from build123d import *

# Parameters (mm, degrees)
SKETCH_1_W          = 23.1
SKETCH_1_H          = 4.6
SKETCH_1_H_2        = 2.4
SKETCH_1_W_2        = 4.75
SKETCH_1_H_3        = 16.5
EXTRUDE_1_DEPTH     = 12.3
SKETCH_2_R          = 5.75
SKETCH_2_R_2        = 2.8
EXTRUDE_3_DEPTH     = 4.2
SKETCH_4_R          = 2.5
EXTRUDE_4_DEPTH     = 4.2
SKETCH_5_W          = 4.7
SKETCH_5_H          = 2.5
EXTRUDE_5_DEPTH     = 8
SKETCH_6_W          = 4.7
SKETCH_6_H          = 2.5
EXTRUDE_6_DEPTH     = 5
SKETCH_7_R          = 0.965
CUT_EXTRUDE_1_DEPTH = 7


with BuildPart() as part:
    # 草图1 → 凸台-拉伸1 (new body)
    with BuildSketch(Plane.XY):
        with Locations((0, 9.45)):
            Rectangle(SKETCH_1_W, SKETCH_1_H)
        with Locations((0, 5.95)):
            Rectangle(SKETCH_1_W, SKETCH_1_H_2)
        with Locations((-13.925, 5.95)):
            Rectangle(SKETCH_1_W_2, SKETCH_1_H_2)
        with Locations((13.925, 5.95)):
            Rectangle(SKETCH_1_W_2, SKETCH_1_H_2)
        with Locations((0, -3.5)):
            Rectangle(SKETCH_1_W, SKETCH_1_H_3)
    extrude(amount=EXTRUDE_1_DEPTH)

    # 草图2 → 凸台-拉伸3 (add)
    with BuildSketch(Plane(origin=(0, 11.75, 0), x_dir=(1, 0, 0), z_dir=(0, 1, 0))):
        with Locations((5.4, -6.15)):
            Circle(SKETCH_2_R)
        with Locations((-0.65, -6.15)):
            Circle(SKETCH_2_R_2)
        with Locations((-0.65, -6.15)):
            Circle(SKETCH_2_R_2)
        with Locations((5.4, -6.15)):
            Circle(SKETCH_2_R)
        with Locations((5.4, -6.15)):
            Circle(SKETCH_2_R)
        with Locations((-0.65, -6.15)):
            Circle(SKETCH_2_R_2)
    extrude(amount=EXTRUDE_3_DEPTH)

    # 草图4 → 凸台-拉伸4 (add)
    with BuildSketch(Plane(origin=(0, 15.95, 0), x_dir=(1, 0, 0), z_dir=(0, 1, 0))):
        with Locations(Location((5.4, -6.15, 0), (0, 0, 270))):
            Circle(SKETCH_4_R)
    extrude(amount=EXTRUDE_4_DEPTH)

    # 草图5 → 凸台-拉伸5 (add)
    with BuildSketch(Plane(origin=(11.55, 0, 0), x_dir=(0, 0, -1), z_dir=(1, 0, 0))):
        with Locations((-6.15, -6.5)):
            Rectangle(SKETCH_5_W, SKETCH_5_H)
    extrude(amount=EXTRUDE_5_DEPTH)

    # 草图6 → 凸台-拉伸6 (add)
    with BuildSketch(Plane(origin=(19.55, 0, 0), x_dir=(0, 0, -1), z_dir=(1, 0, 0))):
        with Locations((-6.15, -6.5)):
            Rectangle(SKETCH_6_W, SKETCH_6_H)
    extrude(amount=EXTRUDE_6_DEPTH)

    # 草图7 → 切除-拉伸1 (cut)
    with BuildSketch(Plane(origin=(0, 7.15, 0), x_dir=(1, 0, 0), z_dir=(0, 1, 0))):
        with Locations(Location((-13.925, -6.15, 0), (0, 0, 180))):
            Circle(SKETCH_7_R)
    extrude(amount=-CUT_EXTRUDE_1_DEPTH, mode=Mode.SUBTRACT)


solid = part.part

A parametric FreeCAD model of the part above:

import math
import FreeCAD as App
import Part
import Sketcher

V = App.Vector


def add_polygon(sketch, points):
    """Adds a closed chain of lines whose ends are joined by coincident constraints."""
    first, n = sketch.GeometryCount, len(points)
    for a, b in zip(points, points[1:] + points[:1]):
        sketch.addGeometry(Part.LineSegment(App.Vector(*a, 0), App.Vector(*b, 0)), False)
    for i in range(n):
        sketch.addConstraint(Sketcher.Constraint("Coincident", first + i, 2, first + (i + 1) % n, 1))

doc = App.newDocument("Part")
params = doc.addObject("Spreadsheet::Sheet", "Params")
for row, (alias, value) in enumerate([
    ("sketch1_width", "23.1 mm"),
    ("sketch1_height", "4.6 mm"),
    ("sketch1_height2", "2.4 mm"),
    ("sketch1_height3", "16.5 mm"),
    ("sketch1_width2", "4.75 mm"),
    ("pad1_length", "12.3 mm"),
    ("sketch2_radius", "2.8 mm"),
    ("sketch2_radius2", "5.75 mm"),
    ("pad2_length", "4.2 mm"),
    ("sketch3_diameter", "5 mm"),
    ("pad3_length", "4.2 mm"),
    ("sketch4_width", "2.5 mm"),
    ("sketch4_height", "4.7 mm"),
    ("pad4_length", "8 mm"),
    ("sketch5_width", "2.5 mm"),
    ("sketch5_height", "4.7 mm"),
    ("pad5_length", "5 mm"),
    ("sketch6_diameter", "1.93 mm"),
    ("pocket1_length", "7 mm"),
], start=1):
    params.set(f"A{row}", alias)
    params.set(f"B{row}", "=" + value)
    params.setAlias(f"B{row}", alias)

body = doc.addObject("PartDesign::Body", "Body")

sketch1 = doc.addObject("Sketcher::SketchObject", "Sketch")
body.addObject(sketch1)
sketch1.AttachmentSupport = (doc.XY_Plane, [""])
sketch1.MapMode = "FlatFace"
add_polygon(sketch1, [(-11.55, 11.75), (-11.55, 7.15), (-16.3, 7.15), (-16.3, 4.75), (-11.55, 4.75), (-11.55, -11.75), (11.55, -11.75), (11.55, 4.75), (16.3, 4.75), (16.3, 7.15), (11.55, 7.15), (11.55, 11.75)])
sketch1.addConstraint([
    Sketcher.Constraint("Vertical", 0),
    Sketcher.Constraint("Horizontal", 1),
    Sketcher.Constraint("Vertical", 2),
    Sketcher.Constraint("Horizontal", 3),
    Sketcher.Constraint("Vertical", 4),
    Sketcher.Constraint("Horizontal", 5),
    Sketcher.Constraint("Vertical", 6),
    Sketcher.Constraint("Horizontal", 7),
    Sketcher.Constraint("Vertical", 8),
    Sketcher.Constraint("Horizontal", 9),
    Sketcher.Constraint("Vertical", 10),
    Sketcher.Constraint("Horizontal", 11),
    Sketcher.Constraint("Symmetric", 4, 2, 10, 2, -1, 1),
    Sketcher.Constraint("Symmetric", 3, 2, 6, 2, -2),
    Sketcher.Constraint("Symmetric", 1, 2, 8, 2, -2),
    Sketcher.Constraint("Vertical", 0, 2, 3, 2),
    Sketcher.Constraint("DistanceX", 5, 1, 5, 2, 23.1),
    Sketcher.Constraint("DistanceY", 0, 2, 0, 1, 4.6),
    Sketcher.Constraint("DistanceY", 2, 2, 2, 1, 2.4),
    Sketcher.Constraint("DistanceY", 4, 2, 4, 1, 16.5),
    Sketcher.Constraint("DistanceX", 1, 2, 1, 1, 4.75),
])
sketch1.setExpression("Constraints[28]", "Params.sketch1_width")
sketch1.setExpression("Constraints[29]", "Params.sketch1_height")
sketch1.setExpression("Constraints[30]", "Params.sketch1_height2")
sketch1.setExpression("Constraints[31]", "Params.sketch1_height3")
sketch1.setExpression("Constraints[32]", "Params.sketch1_width2")
pad1 = doc.addObject("PartDesign::Pad", "Pad")
body.addObject(pad1)
pad1.Profile = sketch1
pad1.setExpression("Length", "Params.pad1_length")

sketch2 = doc.addObject("Sketcher::SketchObject", "Sketch001")
body.addObject(sketch2)
sketch2.AttachmentSupport = (doc.XZ_Plane, [""])
sketch2.MapMode = "FlatFace"
sketch2.AttachmentOffset = App.Placement(V(0, 0, -11.75), App.Rotation())
sketch2.addGeometry([
    Part.ArcOfCircle(Part.Circle(V(-0.65, 6.15, 0), V(0, 0, 1), 2.8), math.radians(70.373249), math.radians(289.626751)),
    Part.ArcOfCircle(Part.Circle(V(5.4, 6.15, 0), V(0, 0, 1), 5.75), math.radians(-152.699023), math.radians(152.699023)),
], False)
sketch2.addConstraint([
    Sketcher.Constraint("Coincident", 0, 1, 1, 2),
    Sketcher.Constraint("Coincident", 1, 1, 0, 2),
    Sketcher.Constraint("Horizontal", 0, 3, 1, 3),
    Sketcher.Constraint("Radius", 0, 2.8),
    Sketcher.Constraint("Radius", 1, 5.75),
    Sketcher.Constraint("DistanceX", -1, 1, 1, 3, 5.4),
    Sketcher.Constraint("DistanceX", 0, 3, -1, 1, 0.65),
    Sketcher.Constraint("DistanceY", -1, 1, 0, 3, 6.15),
])
sketch2.setExpression("Constraints[3]", "Params.sketch2_radius")
sketch2.setExpression("Constraints[4]", "Params.sketch2_radius2")
pad2 = doc.addObject("PartDesign::Pad", "Pad001")
body.addObject(pad2)
pad2.Profile = sketch2
pad2.setExpression("Length", "Params.pad2_length")
pad2.Reversed = True

sketch3 = doc.addObject("Sketcher::SketchObject", "Sketch002")
body.addObject(sketch3)
sketch3.AttachmentSupport = (doc.XZ_Plane, [""])
sketch3.MapMode = "FlatFace"
sketch3.AttachmentOffset = App.Placement(V(0, 0, -15.95), App.Rotation())
sketch3.addGeometry(Part.Circle(V(5.4, 6.15, 0), V(0, 0, 1), 2.5), False)
sketch3.addConstraint([
    Sketcher.Constraint("Diameter", 0, 5.0),
    Sketcher.Constraint("DistanceX", -1, 1, 0, 3, 5.4),
    Sketcher.Constraint("DistanceY", -1, 1, 0, 3, 6.15),
])
sketch3.setExpression("Constraints[0]", "Params.sketch3_diameter")
pad3 = doc.addObject("PartDesign::Pad", "Pad002")
body.addObject(pad3)
pad3.Profile = sketch3
pad3.setExpression("Length", "Params.pad3_length")
pad3.Reversed = True

sketch4 = doc.addObject("Sketcher::SketchObject", "Sketch003")
body.addObject(sketch4)
sketch4.AttachmentSupport = (doc.YZ_Plane, [""])
sketch4.MapMode = "FlatFace"
sketch4.AttachmentOffset = App.Placement(V(0, 0, 11.55), App.Rotation())
add_polygon(sketch4, [(-5.25, 8.5), (-7.75, 8.5), (-7.75, 3.8), (-5.25, 3.8)])
sketch4.addConstraint([
    Sketcher.Constraint("Horizontal", 0),
    Sketcher.Constraint("Vertical", 1),
    Sketcher.Constraint("Horizontal", 2),
    Sketcher.Constraint("Vertical", 3),
    Sketcher.Constraint("DistanceX", 0, 2, 0, 1, 2.5),
    Sketcher.Constraint("DistanceY", 1, 2, 1, 1, 4.7),
    Sketcher.Constraint("DistanceY", -1, 1, 0, 2, 8.5),
    Sketcher.Constraint("DistanceX", 0, 2, -1, 1, 7.75),
])
sketch4.setExpression("Constraints[8]", "Params.sketch4_width")
sketch4.setExpression("Constraints[9]", "Params.sketch4_height")
pad4 = doc.addObject("PartDesign::Pad", "Pad003")
body.addObject(pad4)
pad4.Profile = sketch4
pad4.setExpression("Length", "Params.pad4_length")

sketch5 = doc.addObject("Sketcher::SketchObject", "Sketch004")
body.addObject(sketch5)
sketch5.AttachmentSupport = (doc.YZ_Plane, [""])
sketch5.MapMode = "FlatFace"
sketch5.AttachmentOffset = App.Placement(V(0, 0, 19.55), App.Rotation())
add_polygon(sketch5, [(-5.25, 8.5), (-7.75, 8.5), (-7.75, 3.8), (-5.25, 3.8)])
sketch5.addConstraint([
    Sketcher.Constraint("Horizontal", 0),
    Sketcher.Constraint("Vertical", 1),
    Sketcher.Constraint("Horizontal", 2),
    Sketcher.Constraint("Vertical", 3),
    Sketcher.Constraint("DistanceX", 0, 2, 0, 1, 2.5),
    Sketcher.Constraint("DistanceY", 1, 2, 1, 1, 4.7),
    Sketcher.Constraint("DistanceY", -1, 1, 0, 2, 8.5),
    Sketcher.Constraint("DistanceX", 0, 2, -1, 1, 7.75),
])
sketch5.setExpression("Constraints[8]", "Params.sketch5_width")
sketch5.setExpression("Constraints[9]", "Params.sketch5_height")
pad5 = doc.addObject("PartDesign::Pad", "Pad004")
body.addObject(pad5)
pad5.Profile = sketch5
pad5.setExpression("Length", "Params.pad5_length")

sketch6 = doc.addObject("Sketcher::SketchObject", "Sketch005")
body.addObject(sketch6)
sketch6.AttachmentSupport = (doc.XZ_Plane, [""])
sketch6.MapMode = "FlatFace"
sketch6.AttachmentOffset = App.Placement(V(0, 0, -7.15), App.Rotation())
sketch6.addGeometry(Part.Circle(V(-13.925, 6.15, 0), V(0, 0, 1), 0.965), False)
sketch6.addConstraint([
    Sketcher.Constraint("Diameter", 0, 1.93),
    Sketcher.Constraint("DistanceY", -1, 1, 0, 3, 6.15),
    Sketcher.Constraint("DistanceX", 0, 3, -1, 1, 13.925),
])
sketch6.setExpression("Constraints[0]", "Params.sketch6_diameter")
pocket1 = doc.addObject("PartDesign::Pocket", "Pocket")
body.addObject(pocket1)
pocket1.Profile = sketch6
pocket1.setExpression("Length", "Params.pocket1_length")
pocket1.Reversed = True

doc.recompute()
